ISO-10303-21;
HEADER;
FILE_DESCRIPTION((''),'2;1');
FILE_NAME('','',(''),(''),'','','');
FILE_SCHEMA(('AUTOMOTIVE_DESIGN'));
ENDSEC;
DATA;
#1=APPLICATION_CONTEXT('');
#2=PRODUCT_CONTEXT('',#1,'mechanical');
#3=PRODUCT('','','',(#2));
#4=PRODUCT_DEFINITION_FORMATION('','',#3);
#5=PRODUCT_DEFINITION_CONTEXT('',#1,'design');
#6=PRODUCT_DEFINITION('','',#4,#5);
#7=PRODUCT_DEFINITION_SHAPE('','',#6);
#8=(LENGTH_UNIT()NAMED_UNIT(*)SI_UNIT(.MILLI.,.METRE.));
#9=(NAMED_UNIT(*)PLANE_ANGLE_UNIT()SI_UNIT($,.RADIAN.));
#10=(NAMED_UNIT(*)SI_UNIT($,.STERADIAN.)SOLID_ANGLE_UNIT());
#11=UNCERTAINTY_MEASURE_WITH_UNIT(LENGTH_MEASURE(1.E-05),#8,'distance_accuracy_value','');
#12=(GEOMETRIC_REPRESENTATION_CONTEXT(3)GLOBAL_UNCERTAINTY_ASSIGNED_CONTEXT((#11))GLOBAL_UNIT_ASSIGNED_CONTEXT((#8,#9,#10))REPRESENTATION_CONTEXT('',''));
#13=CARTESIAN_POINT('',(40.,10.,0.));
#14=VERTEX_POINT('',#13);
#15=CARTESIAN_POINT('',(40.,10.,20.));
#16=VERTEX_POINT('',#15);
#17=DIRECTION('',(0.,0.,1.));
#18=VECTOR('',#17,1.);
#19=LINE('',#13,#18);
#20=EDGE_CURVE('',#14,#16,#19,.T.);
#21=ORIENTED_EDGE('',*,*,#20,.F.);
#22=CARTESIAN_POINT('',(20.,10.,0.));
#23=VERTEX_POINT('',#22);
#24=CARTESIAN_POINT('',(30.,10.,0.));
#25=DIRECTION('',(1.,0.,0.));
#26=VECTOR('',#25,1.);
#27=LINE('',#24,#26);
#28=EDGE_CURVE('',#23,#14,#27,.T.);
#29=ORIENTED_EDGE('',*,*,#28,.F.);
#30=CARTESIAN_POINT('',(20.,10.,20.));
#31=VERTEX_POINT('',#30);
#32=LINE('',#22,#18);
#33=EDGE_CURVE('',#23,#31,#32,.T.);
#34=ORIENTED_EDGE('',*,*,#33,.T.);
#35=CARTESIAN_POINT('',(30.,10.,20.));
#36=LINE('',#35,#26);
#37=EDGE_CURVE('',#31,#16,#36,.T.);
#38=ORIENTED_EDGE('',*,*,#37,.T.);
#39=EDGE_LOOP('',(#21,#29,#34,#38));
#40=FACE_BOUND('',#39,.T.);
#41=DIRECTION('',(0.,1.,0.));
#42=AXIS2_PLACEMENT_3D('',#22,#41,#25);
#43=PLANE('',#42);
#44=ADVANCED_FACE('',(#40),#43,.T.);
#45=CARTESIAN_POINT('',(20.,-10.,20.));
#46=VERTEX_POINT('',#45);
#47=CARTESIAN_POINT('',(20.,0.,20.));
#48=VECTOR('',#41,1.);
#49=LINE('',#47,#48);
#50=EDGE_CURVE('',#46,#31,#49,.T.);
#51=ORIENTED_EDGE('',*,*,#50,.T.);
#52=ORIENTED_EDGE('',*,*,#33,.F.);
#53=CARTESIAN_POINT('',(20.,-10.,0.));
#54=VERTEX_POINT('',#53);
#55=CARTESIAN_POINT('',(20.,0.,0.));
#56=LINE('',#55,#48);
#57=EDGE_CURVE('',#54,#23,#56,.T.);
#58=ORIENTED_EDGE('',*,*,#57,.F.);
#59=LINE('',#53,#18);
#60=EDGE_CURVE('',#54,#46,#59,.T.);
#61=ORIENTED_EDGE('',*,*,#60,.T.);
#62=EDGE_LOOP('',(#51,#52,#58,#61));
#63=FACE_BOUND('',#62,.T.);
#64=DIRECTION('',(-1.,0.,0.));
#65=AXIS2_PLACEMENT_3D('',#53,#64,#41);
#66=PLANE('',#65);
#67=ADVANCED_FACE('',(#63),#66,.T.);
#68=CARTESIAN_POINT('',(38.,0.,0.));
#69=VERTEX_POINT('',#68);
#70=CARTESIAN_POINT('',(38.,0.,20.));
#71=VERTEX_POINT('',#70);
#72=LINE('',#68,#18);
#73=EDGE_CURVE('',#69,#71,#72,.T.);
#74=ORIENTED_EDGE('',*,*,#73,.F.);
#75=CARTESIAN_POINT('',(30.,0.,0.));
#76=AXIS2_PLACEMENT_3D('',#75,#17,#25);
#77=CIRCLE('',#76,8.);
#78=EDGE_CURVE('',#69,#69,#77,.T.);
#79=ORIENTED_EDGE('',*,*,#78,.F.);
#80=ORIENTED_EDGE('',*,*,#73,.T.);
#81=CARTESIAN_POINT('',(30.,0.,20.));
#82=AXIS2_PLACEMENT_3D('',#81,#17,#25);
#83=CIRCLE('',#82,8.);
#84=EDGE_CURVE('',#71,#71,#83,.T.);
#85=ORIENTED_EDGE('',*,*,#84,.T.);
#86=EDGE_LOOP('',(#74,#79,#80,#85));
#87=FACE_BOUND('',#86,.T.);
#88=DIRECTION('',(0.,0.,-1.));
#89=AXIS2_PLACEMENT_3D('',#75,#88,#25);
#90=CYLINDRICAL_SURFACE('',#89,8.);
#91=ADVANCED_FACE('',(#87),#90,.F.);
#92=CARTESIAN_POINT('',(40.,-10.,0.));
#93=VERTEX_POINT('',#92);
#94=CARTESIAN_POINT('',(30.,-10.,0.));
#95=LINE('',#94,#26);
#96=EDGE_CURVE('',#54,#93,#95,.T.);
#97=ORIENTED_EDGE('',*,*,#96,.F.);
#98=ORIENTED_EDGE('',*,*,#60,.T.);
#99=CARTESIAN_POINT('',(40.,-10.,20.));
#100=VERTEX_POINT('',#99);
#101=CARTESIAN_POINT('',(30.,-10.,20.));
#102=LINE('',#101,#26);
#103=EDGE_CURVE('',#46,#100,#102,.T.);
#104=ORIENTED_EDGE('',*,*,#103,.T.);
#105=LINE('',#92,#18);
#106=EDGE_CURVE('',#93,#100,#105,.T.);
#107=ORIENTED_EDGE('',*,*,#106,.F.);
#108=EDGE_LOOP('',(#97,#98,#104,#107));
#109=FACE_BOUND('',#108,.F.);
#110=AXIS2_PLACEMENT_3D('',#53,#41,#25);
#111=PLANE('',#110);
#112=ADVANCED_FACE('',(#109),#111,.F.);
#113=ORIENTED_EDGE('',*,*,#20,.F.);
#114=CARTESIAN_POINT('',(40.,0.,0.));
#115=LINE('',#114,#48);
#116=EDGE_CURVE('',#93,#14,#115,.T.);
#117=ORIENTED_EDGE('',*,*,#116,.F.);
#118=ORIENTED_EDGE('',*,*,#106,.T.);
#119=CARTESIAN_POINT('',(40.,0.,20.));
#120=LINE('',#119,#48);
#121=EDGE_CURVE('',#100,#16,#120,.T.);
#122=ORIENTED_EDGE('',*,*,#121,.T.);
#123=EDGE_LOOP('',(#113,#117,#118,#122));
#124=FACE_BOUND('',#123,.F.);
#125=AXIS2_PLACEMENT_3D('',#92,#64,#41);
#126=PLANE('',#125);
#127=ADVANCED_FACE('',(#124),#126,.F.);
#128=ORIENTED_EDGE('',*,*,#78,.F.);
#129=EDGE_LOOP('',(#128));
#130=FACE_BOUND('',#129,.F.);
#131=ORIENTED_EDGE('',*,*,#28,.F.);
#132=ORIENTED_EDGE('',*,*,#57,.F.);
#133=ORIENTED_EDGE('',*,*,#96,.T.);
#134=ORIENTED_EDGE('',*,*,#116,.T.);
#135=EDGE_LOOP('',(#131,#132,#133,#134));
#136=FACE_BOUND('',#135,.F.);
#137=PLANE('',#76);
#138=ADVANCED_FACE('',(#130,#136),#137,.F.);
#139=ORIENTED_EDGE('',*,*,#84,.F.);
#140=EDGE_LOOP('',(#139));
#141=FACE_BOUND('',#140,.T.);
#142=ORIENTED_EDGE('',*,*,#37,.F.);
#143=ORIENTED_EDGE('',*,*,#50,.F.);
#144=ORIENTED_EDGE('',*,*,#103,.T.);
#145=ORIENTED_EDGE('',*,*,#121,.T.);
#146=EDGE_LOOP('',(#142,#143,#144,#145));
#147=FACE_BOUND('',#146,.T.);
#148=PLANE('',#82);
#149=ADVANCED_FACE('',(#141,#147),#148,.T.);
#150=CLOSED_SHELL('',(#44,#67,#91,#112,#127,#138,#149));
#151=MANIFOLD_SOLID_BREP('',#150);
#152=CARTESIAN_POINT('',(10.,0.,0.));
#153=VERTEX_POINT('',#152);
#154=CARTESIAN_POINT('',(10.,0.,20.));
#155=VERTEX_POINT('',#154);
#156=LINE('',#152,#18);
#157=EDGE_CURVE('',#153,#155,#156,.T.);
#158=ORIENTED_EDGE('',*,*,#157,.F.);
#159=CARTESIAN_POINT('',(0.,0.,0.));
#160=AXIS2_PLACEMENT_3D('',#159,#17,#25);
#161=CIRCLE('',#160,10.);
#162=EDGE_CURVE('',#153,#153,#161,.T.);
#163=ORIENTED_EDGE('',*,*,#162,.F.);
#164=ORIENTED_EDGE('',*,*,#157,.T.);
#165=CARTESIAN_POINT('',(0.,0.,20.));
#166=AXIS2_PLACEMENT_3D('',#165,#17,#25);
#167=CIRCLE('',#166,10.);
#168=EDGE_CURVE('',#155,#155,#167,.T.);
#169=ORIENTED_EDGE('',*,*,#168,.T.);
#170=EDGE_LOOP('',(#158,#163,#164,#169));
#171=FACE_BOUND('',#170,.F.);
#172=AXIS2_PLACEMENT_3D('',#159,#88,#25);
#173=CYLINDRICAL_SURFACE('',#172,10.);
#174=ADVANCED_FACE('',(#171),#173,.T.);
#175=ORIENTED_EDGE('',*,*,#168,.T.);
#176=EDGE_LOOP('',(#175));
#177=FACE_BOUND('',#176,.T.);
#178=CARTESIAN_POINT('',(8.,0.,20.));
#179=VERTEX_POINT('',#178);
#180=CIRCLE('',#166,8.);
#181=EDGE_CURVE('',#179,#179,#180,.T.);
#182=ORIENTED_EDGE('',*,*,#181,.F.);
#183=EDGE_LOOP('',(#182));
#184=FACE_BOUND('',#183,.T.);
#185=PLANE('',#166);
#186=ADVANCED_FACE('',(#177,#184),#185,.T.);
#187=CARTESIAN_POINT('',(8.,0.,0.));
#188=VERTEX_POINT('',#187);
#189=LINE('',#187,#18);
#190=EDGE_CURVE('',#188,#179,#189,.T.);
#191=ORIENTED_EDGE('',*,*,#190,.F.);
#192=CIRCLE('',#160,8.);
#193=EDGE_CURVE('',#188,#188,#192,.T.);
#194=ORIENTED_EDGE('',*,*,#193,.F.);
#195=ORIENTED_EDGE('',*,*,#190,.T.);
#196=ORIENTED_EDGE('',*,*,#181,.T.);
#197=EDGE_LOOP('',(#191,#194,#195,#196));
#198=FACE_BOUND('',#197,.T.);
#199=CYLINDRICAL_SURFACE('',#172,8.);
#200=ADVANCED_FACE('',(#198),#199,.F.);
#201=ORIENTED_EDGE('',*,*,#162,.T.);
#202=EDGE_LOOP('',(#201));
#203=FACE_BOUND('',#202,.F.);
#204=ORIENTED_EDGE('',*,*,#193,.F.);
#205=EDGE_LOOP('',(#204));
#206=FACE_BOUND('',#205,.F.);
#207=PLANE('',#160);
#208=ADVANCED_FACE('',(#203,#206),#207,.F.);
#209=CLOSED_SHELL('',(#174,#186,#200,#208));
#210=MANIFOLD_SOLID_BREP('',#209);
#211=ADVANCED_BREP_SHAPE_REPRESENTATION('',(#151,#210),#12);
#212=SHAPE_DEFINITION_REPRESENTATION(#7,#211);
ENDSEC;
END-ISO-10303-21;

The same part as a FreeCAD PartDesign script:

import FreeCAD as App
import Part
import Sketcher

doc = App.newDocument("Part")
body = doc.addObject("PartDesign::Body", "Body")
body.AllowCompound = True

# Sketch on XY plane
sketch1 = doc.addObject("Sketcher::SketchObject", "Sketch")
body.addObject(sketch1)
sketch1.AttachmentSupport = (doc.XY_Plane, [""])
sketch1.MapMode = "FlatFace"
sketch1.addGeometry([
    Part.Circle(App.Vector(0, 0, 0), App.Vector(0, 0, 1), 10),  # 0
    Part.Circle(App.Vector(0, 0, 0), App.Vector(0, 0, 1), 8),  # 1
    Part.LineSegment(App.Vector(20, 10, 0), App.Vector(20, -10, 0)),  # 2
    Part.LineSegment(App.Vector(20, -10, 0), App.Vector(40, -10, 0)),  # 3
    Part.LineSegment(App.Vector(40, -10, 0), App.Vector(40, 10, 0)),  # 4
    Part.LineSegment(App.Vector(40, 10, 0), App.Vector(20, 10, 0)),  # 5
    Part.Circle(App.Vector(30, 0, 0), App.Vector(0, 0, 1), 8),  # 6
], False)
sketch1.addConstraint([
    Sketcher.Constraint("Coincident", 2, 2, 3, 1),
    Sketcher.Constraint("Coincident", 3, 2, 4, 1),
    Sketcher.Constraint("Coincident", 4, 2, 5, 1),
    Sketcher.Constraint("Coincident", 5, 2, 2, 1),
    Sketcher.Constraint("Vertical", 2),
    Sketcher.Constraint("Horizontal", 3),
    Sketcher.Constraint("Vertical", 4),
    Sketcher.Constraint("Horizontal", 5),
    Sketcher.Constraint("Coincident", 0, 3, -1, 1),
    Sketcher.Constraint("Coincident", 1, 3, -1, 1),
    Sketcher.Constraint("Equal", 1, 6),
    Sketcher.Constraint("PointOnObject", 6, 3, -1),
    Sketcher.Constraint("Equal", 5, 2),
    Sketcher.Constraint("Diameter", 0, 20.0),
    Sketcher.Constraint("Diameter", 1, 16.0),
    Sketcher.Constraint("DistanceX", 3, 1, 3, 2, 20.0),
    Sketcher.Constraint("DistanceX", -1, 1, 6, 3, 30.0),
    Sketcher.Constraint("DistanceX", -1, 1, 2, 2, 20.0),
    Sketcher.Constraint("DistanceY", 2, 2, -1, 1, 10.0),
])
pad1 = doc.addObject("PartDesign::Pad", "Pad")
body.addObject(pad1)
pad1.Profile = sketch1
pad1.Length = 20

doc.recompute()
